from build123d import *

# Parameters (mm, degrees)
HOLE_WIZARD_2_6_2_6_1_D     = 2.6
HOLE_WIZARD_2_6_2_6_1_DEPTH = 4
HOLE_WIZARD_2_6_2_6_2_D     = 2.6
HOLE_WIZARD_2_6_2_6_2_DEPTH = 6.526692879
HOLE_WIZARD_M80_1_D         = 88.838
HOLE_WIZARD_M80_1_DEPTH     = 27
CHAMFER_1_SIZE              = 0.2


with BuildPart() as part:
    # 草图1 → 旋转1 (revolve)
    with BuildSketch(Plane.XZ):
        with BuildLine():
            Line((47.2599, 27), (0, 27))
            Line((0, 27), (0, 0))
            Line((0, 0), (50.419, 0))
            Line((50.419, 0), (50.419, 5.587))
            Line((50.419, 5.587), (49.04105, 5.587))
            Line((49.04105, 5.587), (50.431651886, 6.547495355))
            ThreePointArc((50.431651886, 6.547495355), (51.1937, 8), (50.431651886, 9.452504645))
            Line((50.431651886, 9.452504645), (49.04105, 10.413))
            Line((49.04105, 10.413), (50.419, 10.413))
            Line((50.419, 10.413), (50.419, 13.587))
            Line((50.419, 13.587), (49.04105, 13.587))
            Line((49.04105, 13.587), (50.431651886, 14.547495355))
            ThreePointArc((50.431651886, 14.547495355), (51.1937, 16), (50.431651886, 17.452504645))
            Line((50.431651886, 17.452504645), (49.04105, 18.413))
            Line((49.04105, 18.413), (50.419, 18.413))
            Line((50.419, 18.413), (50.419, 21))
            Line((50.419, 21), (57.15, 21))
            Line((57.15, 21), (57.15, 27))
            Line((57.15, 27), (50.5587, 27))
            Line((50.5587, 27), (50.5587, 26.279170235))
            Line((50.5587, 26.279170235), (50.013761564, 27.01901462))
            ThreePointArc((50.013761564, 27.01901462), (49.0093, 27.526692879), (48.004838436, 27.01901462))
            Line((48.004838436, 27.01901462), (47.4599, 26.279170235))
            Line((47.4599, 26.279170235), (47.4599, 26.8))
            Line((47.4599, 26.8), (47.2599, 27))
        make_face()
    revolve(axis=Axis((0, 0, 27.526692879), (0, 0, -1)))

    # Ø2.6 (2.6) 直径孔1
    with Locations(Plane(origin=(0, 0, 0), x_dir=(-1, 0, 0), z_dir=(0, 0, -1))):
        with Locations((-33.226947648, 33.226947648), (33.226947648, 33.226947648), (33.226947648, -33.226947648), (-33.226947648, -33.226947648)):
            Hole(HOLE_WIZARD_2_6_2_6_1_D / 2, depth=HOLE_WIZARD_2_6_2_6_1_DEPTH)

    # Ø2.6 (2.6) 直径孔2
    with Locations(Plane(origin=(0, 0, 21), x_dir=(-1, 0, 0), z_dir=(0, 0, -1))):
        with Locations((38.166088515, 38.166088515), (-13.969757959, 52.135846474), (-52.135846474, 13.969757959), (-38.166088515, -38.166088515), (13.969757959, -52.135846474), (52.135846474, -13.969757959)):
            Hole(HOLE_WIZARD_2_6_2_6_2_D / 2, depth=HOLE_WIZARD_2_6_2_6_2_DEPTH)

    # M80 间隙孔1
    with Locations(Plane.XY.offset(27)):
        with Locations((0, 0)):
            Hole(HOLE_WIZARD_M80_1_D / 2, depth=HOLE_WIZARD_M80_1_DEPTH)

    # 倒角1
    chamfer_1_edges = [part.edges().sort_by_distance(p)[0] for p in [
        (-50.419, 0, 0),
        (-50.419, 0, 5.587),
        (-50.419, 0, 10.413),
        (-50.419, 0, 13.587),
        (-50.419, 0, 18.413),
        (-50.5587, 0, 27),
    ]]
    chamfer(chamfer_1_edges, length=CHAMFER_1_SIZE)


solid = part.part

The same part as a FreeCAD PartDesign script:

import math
import FreeCAD as App
import Part
import Sketcher

V = App.Vector
Q = App.Units.Quantity


def edges_at(feature, points):
    """Names of the edges that pass closest to the given points."""
    edges = feature.Shape.Edges
    near = lambda p: min(range(len(edges)), key=lambda i: edges[i].distToShape(Part.Vertex(*p))[0])
    return sorted({f"Edge{near(p) + 1}" for p in points})

doc = App.newDocument("Part")
params = doc.addObject("Spreadsheet::Sheet", "Params")
for row, (alias, value) in enumerate([
    ("sketch1_height", "27 mm"),
    ("sketch1_height2", "6 mm"),
    ("revolution_angle", "360 deg"),
    ("sketch2_diameter", "2.6 mm"),
    ("hole_diameter", "2.6 mm"),
    ("hole_depth", "4 mm"),
    ("sketch3_diameter", "2.6 mm"),
    ("hole2_diameter", "2.6 mm"),
    ("hole2_depth", "6.526693 mm"),
    ("hole3_diameter", "88.838 mm"),
    ("hole3_depth", "27 mm"),
    ("chamfer_size", "0.2 mm"),
], start=1):
    params.set(f"A{row}", alias)
    params.set(f"B{row}", "=" + value)
    params.setAlias(f"B{row}", alias)

body = doc.addObject("PartDesign::Body", "Body")

# Sketch on XZ plane
sketch1 = doc.addObject("Sketcher::SketchObject", "Sketch")
body.addObject(sketch1)
sketch1.AttachmentSupport = (doc.XZ_Plane, [""])
sketch1.MapMode = "FlatFace"
sketch1.addGeometry([
    Part.LineSegment(V(47.2599, 27, 0), V(0, 27, 0)),  # 0
    Part.LineSegment(V(0, 27, 0), V(0, 0, 0)),  # 1
    Part.LineSegment(V(0, 0, 0), V(50.419, 0, 0)),  # 2
    Part.LineSegment(V(50.419, 0, 0), V(50.419, 5.587, 0)),  # 3
    Part.LineSegment(V(50.419, 5.587, 0), V(49.04105, 5.587, 0)),  # 4
    Part.LineSegment(V(49.04105, 5.587, 0), V(50.431652, 6.547495, 0)),  # 5
    Part.ArcOfCircle(Part.Circle(V(49.4284, 8, 0), V(0, 0, 1), 1.7653), math.radians(-55.366977), math.radians(55.366977)),  # 6
    Part.LineSegment(V(50.431652, 9.452505, 0), V(49.04105, 10.413, 0)),  # 7
    Part.LineSegment(V(49.04105, 10.413, 0), V(50.419, 10.413, 0)),  # 8
    Part.LineSegment(V(50.419, 10.413, 0), V(50.419, 13.587, 0)),  # 9
    Part.LineSegment(V(50.419, 13.587, 0), V(49.04105, 13.587, 0)),  # 10
    Part.LineSegment(V(49.04105, 13.587, 0), V(50.431652, 14.547495, 0)),  # 11
    Part.ArcOfCircle(Part.Circle(V(49.4284, 16, 0), V(0, 0, 1), 1.7653), math.radians(-55.366977), math.radians(55.366977)),  # 12
    Part.LineSegment(V(50.431652, 17.452505, 0), V(49.04105, 18.413, 0)),  # 13
    Part.LineSegment(V(49.04105, 18.413, 0), V(50.419, 18.413, 0)),  # 14
    Part.LineSegment(V(50.419, 18.413, 0), V(50.419, 21, 0)),  # 15
    Part.LineSegment(V(50.419, 21, 0), V(57.15, 21, 0)),  # 16
    Part.LineSegment(V(57.15, 21, 0), V(57.15, 27, 0)),  # 17
    Part.LineSegment(V(57.15, 27, 0), V(50.5587, 27, 0)),  # 18
    Part.LineSegment(V(50.5587, 27, 0), V(50.5587, 26.27917, 0)),  # 19
    Part.LineSegment(V(50.5587, 26.27917, 0), V(50.013762, 27.019015, 0)),  # 20
    Part.ArcOfCircle(Part.Circle(V(49.0093, 26.27917, 0), V(0, 0, 1), 1.247523), math.radians(36.373807), math.radians(143.626193)),  # 21
    Part.LineSegment(V(48.004838, 27.019015, 0), V(47.4599, 26.27917, 0)),  # 22
    Part.LineSegment(V(47.4599, 26.27917, 0), V(47.4599, 26.8, 0)),  # 23
    Part.LineSegment(V(47.4599, 26.8, 0), V(47.2599, 27, 0)),  # 24
], False)
sketch1.addConstraint([
    Sketcher.Constraint("Coincident", 0, 2, 1, 1),
    Sketcher.Constraint("Coincident", 1, 2, 2, 1),
    Sketcher.Constraint("Coincident", 2, 2, 3, 1),
    Sketcher.Constraint("Coincident", 3, 2, 4, 1),
    Sketcher.Constraint("Coincident", 4, 2, 5, 1),
    Sketcher.Constraint("Tangent", 5, 2, 6, 1),
    Sketcher.Constraint("Tangent", 6, 2, 7, 1),
    Sketcher.Constraint("Coincident", 7, 2, 8, 1),
    Sketcher.Constraint("Coincident", 8, 2, 9, 1),
    Sketcher.Constraint("Coincident", 9, 2, 10, 1),
    Sketcher.Constraint("Coincident", 10, 2, 11, 1),
    Sketcher.Constraint("Tangent", 11, 2, 12, 1),
    Sketcher.Constraint("Tangent", 12, 2, 13, 1),
    Sketcher.Constraint("Coincident", 13, 2, 14, 1),
    Sketcher.Constraint("Coincident", 14, 2, 15, 1),
    Sketcher.Constraint("Coincident", 15, 2, 16, 1),
    Sketcher.Constraint("Coincident", 16, 2, 17, 1),
    Sketcher.Constraint("Coincident", 17, 2, 18, 1),
    Sketcher.Constraint("Coincident", 18, 2, 19, 1),
    Sketcher.Constraint("Coincident", 19, 2, 20, 1),
    Sketcher.Constraint("Tangent", 20, 2, 21, 1),
    Sketcher.Constraint("Tangent", 21, 2, 22, 1),
    Sketcher.Constraint("Coincident", 22, 2, 23, 1),
    Sketcher.Constraint("Coincident", 23, 2, 24, 1),
    Sketcher.Constraint("Coincident", 24, 2, 0, 1),
    Sketcher.Constraint("Horizontal", 0),
    Sketcher.Constraint("Vertical", 1),
    Sketcher.Constraint("Horizontal", 2),
    Sketcher.Constraint("Vertical", 3),
    Sketcher.Constraint("Horizontal", 4),
    Sketcher.Constraint("Horizontal", 8),
    Sketcher.Constraint("Vertical", 9),
    Sketcher.Constraint("Horizontal", 10),
    Sketcher.Constraint("Horizontal", 14),
    Sketcher.Constraint("Vertical", 15),
    Sketcher.Constraint("Horizontal", 16),
    Sketcher.Constraint("Vertical", 17),
    Sketcher.Constraint("Horizontal", 18),
    Sketcher.Constraint("Vertical", 19),
    Sketcher.Constraint("Vertical", 23),
    Sketcher.Constraint("Coincident", 1, 2, -1, 1),
    Sketcher.Constraint("Equal", 6, 12),
    Sketcher.Constraint("Parallel", 5, 11),
    Sketcher.Constraint("Parallel", 7, 13),
    Sketcher.Constraint("Horizontal", 0, 2, 17, 2),
    Sketcher.Constraint("Horizontal", 21, 3, 19, 2),
    Sketcher.Constraint("Horizontal", 20, 2, 21, 2),
    Sketcher.Constraint("Horizontal", 19, 2, 22, 2),
    Sketcher.Constraint("Vertical", 6, 3, 12, 3),
    Sketcher.Constraint("Vertical", 5, 2, 6, 2),
    Sketcher.Constraint("Vertical", 4, 2, 7, 2),
    Sketcher.Constraint("Vertical", 3, 2, 8, 2),
    Sketcher.Constraint("Vertical", 7, 2, 10, 2),
    Sketcher.Constraint("Vertical", 10, 2, 13, 2),
    Sketcher.Constraint("Vertical", 9, 2, 14, 2),
    Sketcher.Constraint("DistanceY", 1, 2, 1, 1, 27.0),
    Sketcher.Constraint("DistanceY", 17, 1, 17, 2, 6.0),
    Sketcher.Constraint("Angle", 24, Q("135 deg")),
    Sketcher.Constraint("DistanceY", -1, 1, 6, 3, 8.0),
    Sketcher.Constraint("DistanceY", -1, 1, 12, 3, 16.0),
    Sketcher.Constraint("DistanceY", -1, 1, 23, 2, 26.8),
    Sketcher.Constraint("Radius", 6, 1.7653),
    Sketcher.Constraint("DistanceX", 2, 1, 2, 2, 50.419),
    Sketcher.Constraint("DistanceX", 16, 1, 16, 2, 6.731),
    Sketcher.Constraint("DistanceY", 3, 1, 3, 2, 5.587),
    Sketcher.Constraint("DistanceX", 0, 2, 0, 1, 47.2599),
    Sketcher.Constraint("DistanceX", 18, 2, 18, 1, 6.5913),
    Sketcher.Constraint("Radius", 21, 1.247523),
    Sketcher.Constraint("DistanceX", 4, 2, 4, 1, 1.37795),
    Sketcher.Constraint("DistanceY", 19, 2, 19, 1, 0.72083),
    Sketcher.Constraint("DistanceX", -1, 1, 6, 3, 49.4284),
])
sketch1.setExpression("Constraints[55]", "Params.sketch1_height")
sketch1.setExpression("Constraints[56]", "Params.sketch1_height2")
revolution = doc.addObject("PartDesign::Revolution", "Revolution")
body.addObject(revolution)
revolution.Profile = sketch1
revolution.ReferenceAxis = (sketch1, ["V_Axis"])
revolution.setExpression("Angle", "Params.revolution_angle")

# Sketch on XY plane
sketch2 = doc.addObject("Sketcher::SketchObject", "Sketch001")
body.addObject(sketch2)
sketch2.AttachmentSupport = (doc.XY_Plane, [""])
sketch2.MapMode = "FlatFace"
sketch2.addGeometry([
    Part.Circle(V(33.226948, 33.226948, 0), V(0, 0, 1), 1.3),
    Part.Circle(V(-33.226948, 33.226948, 0), V(0, 0, 1), 1.3),
    Part.Circle(V(-33.226948, -33.226948, 0), V(0, 0, 1), 1.3),
    Part.Circle(V(33.226948, -33.226948, 0), V(0, 0, 1), 1.3),
], False)
sketch2.addConstraint([
    Sketcher.Constraint("Equal", 0, 1),
    Sketcher.Constraint("Equal", 1, 2),
    Sketcher.Constraint("Equal", 2, 3),
    Sketcher.Constraint("Symmetric", 0, 3, 2, 3, -1, 1),
    Sketcher.Constraint("Symmetric", 1, 3, 3, 3, -1, 1),
    Sketcher.Constraint("Symmetric", 0, 3, 1, 3, -2),
    Sketcher.Constraint("Diameter", 0, 2.6),
    Sketcher.Constraint("DistanceX", -1, 1, 0, 3, 33.226948),
    Sketcher.Constraint("DistanceY", -1, 1, 0, 3, 33.226948),
])
sketch2.setExpression("Constraints[6]", "Params.sketch2_diameter")
doc.recompute()
hole = doc.addObject("PartDesign::Hole", "Hole")
body.addObject(hole)
hole.Profile = sketch2
hole.ThreadType = "None"
hole.setExpression("Diameter", "Params.hole_diameter")
hole.DepthType = "Dimension"
hole.setExpression("Depth", "Params.hole_depth")
hole.DrillPoint = "Flat"
hole.Reversed = True

# Sketch on XY plane
sketch3 = doc.addObject("Sketcher::SketchObject", "Sketch002")
body.addObject(sketch3)
sketch3.AttachmentSupport = (doc.XY_Plane, [""])
sketch3.MapMode = "FlatFace"
sketch3.AttachmentOffset = App.Placement(V(0, 0, 21), App.Rotation())
sketch3.addGeometry([
    Part.Circle(V(-38.166089, 38.166089, 0), V(0, 0, 1), 1.3),  # 0
    Part.Circle(V(13.969758, 52.135846, 0), V(0, 0, 1), 1.3),  # 1
    Part.Circle(V(52.135846, 13.969758, 0), V(0, 0, 1), 1.3),  # 2
    Part.Circle(V(38.166089, -38.166089, 0), V(0, 0, 1), 1.3),  # 3
    Part.Circle(V(-13.969758, -52.135846, 0), V(0, 0, 1), 1.3),  # 4
    Part.Circle(V(-52.135846, -13.969758, 0), V(0, 0, 1), 1.3),  # 5
], False)
sketch3.addConstraint([
    Sketcher.Constraint("Equal", 0, 1),
    Sketcher.Constraint("Equal", 1, 2),
    Sketcher.Constraint("Equal", 2, 3),
    Sketcher.Constraint("Equal", 3, 4),
    Sketcher.Constraint("Equal", 4, 5),
    Sketcher.Constraint("Symmetric", 0, 3, 3, 3, -1, 1),
    Sketcher.Constraint("Symmetric", 1, 3, 4, 3, -1, 1),
    Sketcher.Constraint("Symmetric", 2, 3, 5, 3, -1, 1),
    Sketcher.Constraint("Diameter", 0, 2.6),
    Sketcher.Constraint("DistanceX", 0, 3, -1, 1, 38.166089),
    Sketcher.Constraint("DistanceY", -1, 1, 0, 3, 38.166089),
    Sketcher.Constraint("DistanceX", 1, 3, 2, 3, 38.166089),
    Sketcher.Constraint("DistanceY", 2, 3, 1, 3, 38.166089),
    Sketcher.Constraint("DistanceY", 2, 3, 0, 3, 24.196331),
    Sketcher.Constraint("DistanceX", 1, 3, 3, 3, 24.196331),
])
sketch3.setExpression("Constraints[8]", "Params.sketch3_diameter")
doc.recompute()
hole2 = doc.addObject("PartDesign::Hole", "Hole001")
body.addObject(hole2)
hole2.Profile = sketch3
hole2.ThreadType = "None"
hole2.setExpression("Diameter", "Params.hole2_diameter")
hole2.DepthType = "Dimension"
hole2.setExpression("Depth", "Params.hole2_depth")
hole2.DrillPoint = "Flat"
hole2.Reversed = True

# Sketch on XY plane
sketch4 = doc.addObject("Sketcher::SketchObject", "Sketch003")
body.addObject(sketch4)
sketch4.AttachmentSupport = (doc.XY_Plane, [""])
sketch4.MapMode = "FlatFace"
sketch4.AttachmentOffset = App.Placement(V(0, 0, 27), App.Rotation())
sketch4.addGeometry(Part.Circle(V(0, 0, 0), V(0, 0, 1), 44.419), False)
sketch4.addConstraint([
    Sketcher.Constraint("Coincident", 0, 3, -1, 1),
    Sketcher.Constraint("Diameter", 0, 88.838),
])
doc.recompute()
hole3 = doc.addObject("PartDesign::Hole", "Hole002")
body.addObject(hole3)
hole3.Profile = sketch4
hole3.ThreadType = "None"
hole3.setExpression("Diameter", "Params.hole3_diameter")
hole3.DepthType = "Dimension"
hole3.setExpression("Depth", "Params.hole3_depth")
hole3.DrillPoint = "Flat"
doc.recompute()

chamfer = doc.addObject("PartDesign::Chamfer", "Chamfer")
body.addObject(chamfer)
chamfer.Base = (hole3, edges_at(hole3, [
    (-50.419, 0, 0),
    (-50.419, 0, 5.587),
    (-50.419, 0, 10.413),
    (-50.419, 0, 13.587),
    (-50.419, 0, 18.413),
    (-50.559, 0, 27),
]))
chamfer.setExpression("Size", "Params.chamfer_size")

doc.recompute()
